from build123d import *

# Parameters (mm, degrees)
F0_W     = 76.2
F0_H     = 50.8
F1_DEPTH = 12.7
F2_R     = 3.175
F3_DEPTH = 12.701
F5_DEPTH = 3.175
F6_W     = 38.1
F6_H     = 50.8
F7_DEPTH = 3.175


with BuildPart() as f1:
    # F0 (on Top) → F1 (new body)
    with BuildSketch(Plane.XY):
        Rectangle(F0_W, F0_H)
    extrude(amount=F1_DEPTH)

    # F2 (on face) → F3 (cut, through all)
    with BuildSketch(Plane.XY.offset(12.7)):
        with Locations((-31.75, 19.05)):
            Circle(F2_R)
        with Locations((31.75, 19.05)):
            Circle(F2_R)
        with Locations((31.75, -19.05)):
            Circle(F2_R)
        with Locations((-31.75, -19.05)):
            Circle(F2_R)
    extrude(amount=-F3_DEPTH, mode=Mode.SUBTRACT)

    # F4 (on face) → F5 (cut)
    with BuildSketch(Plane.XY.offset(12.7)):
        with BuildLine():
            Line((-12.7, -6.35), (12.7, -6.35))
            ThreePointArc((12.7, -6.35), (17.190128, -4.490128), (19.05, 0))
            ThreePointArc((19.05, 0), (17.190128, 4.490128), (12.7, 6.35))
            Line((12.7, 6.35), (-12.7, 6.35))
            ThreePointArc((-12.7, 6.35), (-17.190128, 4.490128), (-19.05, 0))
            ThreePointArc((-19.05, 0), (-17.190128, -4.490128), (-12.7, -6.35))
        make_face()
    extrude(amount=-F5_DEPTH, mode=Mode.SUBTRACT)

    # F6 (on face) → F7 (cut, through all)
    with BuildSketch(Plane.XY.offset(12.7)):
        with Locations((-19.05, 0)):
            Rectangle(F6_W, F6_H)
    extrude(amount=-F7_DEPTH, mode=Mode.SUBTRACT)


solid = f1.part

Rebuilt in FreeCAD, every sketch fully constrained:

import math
import FreeCAD as App
import Part
import Sketcher
Q = App.Units.Quantity

doc = App.newDocument("Part")
body = doc.addObject("PartDesign::Body", "Body")

# Sketch on XY plane
sketch1 = doc.addObject("Sketcher::SketchObject", "Sketch")
body.addObject(sketch1)
sketch1.AttachmentSupport = (doc.XY_Plane, [""])
sketch1.MapMode = "FlatFace"
sketch1.addGeometry(Part.LineSegment(App.Vector(-38.1, 25.4, 0), App.Vector(-38.1, -25.4, 0)), False)
sketch1.addGeometry(Part.LineSegment(App.Vector(-38.1, -25.4, 0), App.Vector(38.1, -25.4, 0)), False)
sketch1.addGeometry(Part.LineSegment(App.Vector(38.1, -25.4, 0), App.Vector(38.1, 25.4, 0)), False)
sketch1.addGeometry(Part.LineSegment(App.Vector(38.1, 25.4, 0), App.Vector(-38.1, 25.4, 0)), False)
sketch1.addConstraint(Sketcher.Constraint("Coincident", 0, 2, 1, 1))
sketch1.addConstraint(Sketcher.Constraint("Coincident", 1, 2, 2, 1))
sketch1.addConstraint(Sketcher.Constraint("Coincident", 2, 2, 3, 1))
sketch1.addConstraint(Sketcher.Constraint("Coincident", 3, 2, 0, 1))
sketch1.addConstraint(Sketcher.Constraint("Vertical", 0))
sketch1.addConstraint(Sketcher.Constraint("Horizontal", 1))
sketch1.addConstraint(Sketcher.Constraint("Vertical", 2))
sketch1.addConstraint(Sketcher.Constraint("Horizontal", 3))
sketch1.addConstraint(Sketcher.Constraint("Symmetric", 0, 2, 2, 2, -1, 1))
sketch1.addConstraint(Sketcher.Constraint("DistanceX", 1, 1, 1, 2, Q("3 in")))
sketch1.addConstraint(Sketcher.Constraint("DistanceY", 0, 2, 0, 1, Q("2 in")))
pad1 = doc.addObject("PartDesign::Pad", "Pad")
body.addObject(pad1)
pad1.Profile = sketch1
pad1.Length = Q("0.5 in")

# Sketch on XY plane
sketch2 = doc.addObject("Sketcher::SketchObject", "Sketch001")
body.addObject(sketch2)
sketch2.AttachmentSupport = (doc.XY_Plane, [""])
sketch2.MapMode = "FlatFace"
sketch2.AttachmentOffset = App.Placement(App.Vector(0, 0, 0.5 * 25.4), App.Rotation())
sketch2.addGeometry(Part.Circle(App.Vector(-31.75, 19.05, 0), App.Vector(0, 0, 1), 3.175), False)
sketch2.addGeometry(Part.Circle(App.Vector(31.75, 19.05, 0), App.Vector(0, 0, 1), 3.175), False)
sketch2.addGeometry(Part.Circle(App.Vector(31.75, -19.05, 0), App.Vector(0, 0, 1), 3.175), False)
sketch2.addGeometry(Part.Circle(App.Vector(-31.75, -19.05, 0), App.Vector(0, 0, 1), 3.175), False)
sketch2.addConstraint(Sketcher.Constraint("Equal", 0, 1))
sketch2.addConstraint(Sketcher.Constraint("Equal", 1, 2))
sketch2.addConstraint(Sketcher.Constraint("Equal", 2, 3))
sketch2.addConstraint(Sketcher.Constraint("Symmetric", 0, 3, 2, 3, -1, 1))
sketch2.addConstraint(Sketcher.Constraint("Symmetric", 1, 3, 3, 3, -1, 1))
sketch2.addConstraint(Sketcher.Constraint("Symmetric", 0, 3, 1, 3, -2))
sketch2.addConstraint(Sketcher.Constraint("Diameter", 0, Q("0.25 in")))
sketch2.addConstraint(Sketcher.Constraint("DistanceX", 0, 3, 1, 3, Q("2.5 in")))
sketch2.addConstraint(Sketcher.Constraint("DistanceY", 2, 3, 1, 3, Q("1.5 in")))
pocket1 = doc.addObject("PartDesign::Pocket", "Pocket")
body.addObject(pocket1)
pocket1.Profile = sketch2
pocket1.Type = "ThroughAll"

# Sketch on XY plane
sketch3 = doc.addObject("Sketcher::SketchObject", "Sketch002")
body.addObject(sketch3)
sketch3.AttachmentSupport = (doc.XY_Plane, [""])
sketch3.MapMode = "FlatFace"
sketch3.AttachmentOffset = App.Placement(App.Vector(0, 0, 0.5 * 25.4), App.Rotation())
sketch3.addGeometry(Part.LineSegment(App.Vector(-12.7, -6.35, 0), App.Vector(12.7, -6.35, 0)), False)
sketch3.addGeometry(Part.ArcOfCircle(Part.Circle(App.Vector(12.7, 0, 0), App.Vector(0, 0, 1), 6.35), math.radians(-89.999998), math.radians(-0.000002)), False)
sketch3.addGeometry(Part.ArcOfCircle(Part.Circle(App.Vector(12.7, 0, 0), App.Vector(0, 0, 1), 6.35), math.radians(0.000002), math.radians(89.999998)), False)
sketch3.addGeometry(Part.LineSegment(App.Vector(12.7, 6.35, 0), App.Vector(-12.7, 6.35, 0)), False)
sketch3.addGeometry(Part.ArcOfCircle(Part.Circle(App.Vector(-12.7, 0, 0), App.Vector(0, 0, 1), 6.35), math.radians(90.000002), math.radians(179.999998)), False)
sketch3.addGeometry(Part.ArcOfCircle(Part.Circle(App.Vector(-12.7, 0, 0), App.Vector(0, 0, 1), 6.35), math.radians(-179.999998), math.radians(-90.000002)), False)
sketch3.addConstraint(Sketcher.Constraint("Tangent", 0, 2, 1, 1))
sketch3.addConstraint(Sketcher.Constraint("Tangent", 1, 2, 2, 1))
sketch3.addConstraint(Sketcher.Constraint("Tangent", 2, 2, 3, 1))
sketch3.addConstraint(Sketcher.Constraint("Tangent", 3, 2, 4, 1))
sketch3.addConstraint(Sketcher.Constraint("Tangent", 4, 2, 5, 1))
sketch3.addConstraint(Sketcher.Constraint("Tangent", 5, 2, 0, 1))
sketch3.addConstraint(Sketcher.Constraint("Horizontal", 0))
sketch3.addConstraint(Sketcher.Constraint("Horizontal", 3))
sketch3.addConstraint(Sketcher.Constraint("Equal", 1, 2))
sketch3.addConstraint(Sketcher.Constraint("Equal", 2, 4))
sketch3.addConstraint(Sketcher.Constraint("Symmetric", 1, 3, 4, 3, -1, 1))
sketch3.addConstraint(Sketcher.Constraint("PointOnObject", 1, 2, -1))
sketch3.addConstraint(Sketcher.Constraint("PointOnObject", 4, 2, -1))
sketch3.addConstraint(Sketcher.Constraint("DistanceX", 0, 1, 0, 2, Q("1 in")))
sketch3.addConstraint(Sketcher.Constraint("Radius", 1, Q("0.25 in")))
pocket2 = doc.addObject("PartDesign::Pocket", "Pocket001")
body.addObject(pocket2)
pocket2.Profile = sketch3
pocket2.Length = Q("0.125 in")

# Sketch on XY plane
sketch4 = doc.addObject("Sketcher::SketchObject", "Sketch003")
body.addObject(sketch4)
sketch4.AttachmentSupport = (doc.XY_Plane, [""])
sketch4.MapMode = "FlatFace"
sketch4.AttachmentOffset = App.Placement(App.Vector(0, 0, 0.5 * 25.4), App.Rotation())
sketch4.addGeometry(Part.LineSegment(App.Vector(-38.1, 25.4, 0), App.Vector(-38.1, -25.4, 0)), False)
sketch4.addGeometry(Part.LineSegment(App.Vector(-38.1, -25.4, 0), App.Vector(0, -25.4, 0)), False)
sketch4.addGeometry(Part.LineSegment(App.Vector(0, -25.4, 0), App.Vector(0, 25.4, 0)), False)
sketch4.addGeometry(Part.LineSegment(App.Vector(0, 25.4, 0), App.Vector(-38.1, 25.4, 0)), False)
sketch4.addConstraint(Sketcher.Constraint("Coincident", 0, 2, 1, 1))
sketch4.addConstraint(Sketcher.Constraint("Coincident", 1, 2, 2, 1))
sketch4.addConstraint(Sketcher.Constraint("Coincident", 2, 2, 3, 1))
sketch4.addConstraint(Sketcher.Constraint("Coincident", 3, 2, 0, 1))
sketch4.addConstraint(Sketcher.Constraint("Vertical", 0))
sketch4.addConstraint(Sketcher.Constraint("Horizontal", 1))
sketch4.addConstraint(Sketcher.Constraint("Vertical", 2))
sketch4.addConstraint(Sketcher.Constraint("Horizontal", 3))
sketch4.addConstraint(Sketcher.Constraint("Symmetric", 1, 2, 2, 2, -1, 1))
sketch4.addConstraint(Sketcher.Constraint("DistanceY", 0, 2, 0, 1, Q("2 in")))
sketch4.addConstraint(Sketcher.Constraint("DistanceX", 1, 1, 1, 2, Q("1.5 in")))
pocket3 = doc.addObject("PartDesign::Pocket", "Pocket002")
body.addObject(pocket3)
pocket3.Profile = sketch4
pocket3.Length = Q("0.125 in")

doc.recompute()
